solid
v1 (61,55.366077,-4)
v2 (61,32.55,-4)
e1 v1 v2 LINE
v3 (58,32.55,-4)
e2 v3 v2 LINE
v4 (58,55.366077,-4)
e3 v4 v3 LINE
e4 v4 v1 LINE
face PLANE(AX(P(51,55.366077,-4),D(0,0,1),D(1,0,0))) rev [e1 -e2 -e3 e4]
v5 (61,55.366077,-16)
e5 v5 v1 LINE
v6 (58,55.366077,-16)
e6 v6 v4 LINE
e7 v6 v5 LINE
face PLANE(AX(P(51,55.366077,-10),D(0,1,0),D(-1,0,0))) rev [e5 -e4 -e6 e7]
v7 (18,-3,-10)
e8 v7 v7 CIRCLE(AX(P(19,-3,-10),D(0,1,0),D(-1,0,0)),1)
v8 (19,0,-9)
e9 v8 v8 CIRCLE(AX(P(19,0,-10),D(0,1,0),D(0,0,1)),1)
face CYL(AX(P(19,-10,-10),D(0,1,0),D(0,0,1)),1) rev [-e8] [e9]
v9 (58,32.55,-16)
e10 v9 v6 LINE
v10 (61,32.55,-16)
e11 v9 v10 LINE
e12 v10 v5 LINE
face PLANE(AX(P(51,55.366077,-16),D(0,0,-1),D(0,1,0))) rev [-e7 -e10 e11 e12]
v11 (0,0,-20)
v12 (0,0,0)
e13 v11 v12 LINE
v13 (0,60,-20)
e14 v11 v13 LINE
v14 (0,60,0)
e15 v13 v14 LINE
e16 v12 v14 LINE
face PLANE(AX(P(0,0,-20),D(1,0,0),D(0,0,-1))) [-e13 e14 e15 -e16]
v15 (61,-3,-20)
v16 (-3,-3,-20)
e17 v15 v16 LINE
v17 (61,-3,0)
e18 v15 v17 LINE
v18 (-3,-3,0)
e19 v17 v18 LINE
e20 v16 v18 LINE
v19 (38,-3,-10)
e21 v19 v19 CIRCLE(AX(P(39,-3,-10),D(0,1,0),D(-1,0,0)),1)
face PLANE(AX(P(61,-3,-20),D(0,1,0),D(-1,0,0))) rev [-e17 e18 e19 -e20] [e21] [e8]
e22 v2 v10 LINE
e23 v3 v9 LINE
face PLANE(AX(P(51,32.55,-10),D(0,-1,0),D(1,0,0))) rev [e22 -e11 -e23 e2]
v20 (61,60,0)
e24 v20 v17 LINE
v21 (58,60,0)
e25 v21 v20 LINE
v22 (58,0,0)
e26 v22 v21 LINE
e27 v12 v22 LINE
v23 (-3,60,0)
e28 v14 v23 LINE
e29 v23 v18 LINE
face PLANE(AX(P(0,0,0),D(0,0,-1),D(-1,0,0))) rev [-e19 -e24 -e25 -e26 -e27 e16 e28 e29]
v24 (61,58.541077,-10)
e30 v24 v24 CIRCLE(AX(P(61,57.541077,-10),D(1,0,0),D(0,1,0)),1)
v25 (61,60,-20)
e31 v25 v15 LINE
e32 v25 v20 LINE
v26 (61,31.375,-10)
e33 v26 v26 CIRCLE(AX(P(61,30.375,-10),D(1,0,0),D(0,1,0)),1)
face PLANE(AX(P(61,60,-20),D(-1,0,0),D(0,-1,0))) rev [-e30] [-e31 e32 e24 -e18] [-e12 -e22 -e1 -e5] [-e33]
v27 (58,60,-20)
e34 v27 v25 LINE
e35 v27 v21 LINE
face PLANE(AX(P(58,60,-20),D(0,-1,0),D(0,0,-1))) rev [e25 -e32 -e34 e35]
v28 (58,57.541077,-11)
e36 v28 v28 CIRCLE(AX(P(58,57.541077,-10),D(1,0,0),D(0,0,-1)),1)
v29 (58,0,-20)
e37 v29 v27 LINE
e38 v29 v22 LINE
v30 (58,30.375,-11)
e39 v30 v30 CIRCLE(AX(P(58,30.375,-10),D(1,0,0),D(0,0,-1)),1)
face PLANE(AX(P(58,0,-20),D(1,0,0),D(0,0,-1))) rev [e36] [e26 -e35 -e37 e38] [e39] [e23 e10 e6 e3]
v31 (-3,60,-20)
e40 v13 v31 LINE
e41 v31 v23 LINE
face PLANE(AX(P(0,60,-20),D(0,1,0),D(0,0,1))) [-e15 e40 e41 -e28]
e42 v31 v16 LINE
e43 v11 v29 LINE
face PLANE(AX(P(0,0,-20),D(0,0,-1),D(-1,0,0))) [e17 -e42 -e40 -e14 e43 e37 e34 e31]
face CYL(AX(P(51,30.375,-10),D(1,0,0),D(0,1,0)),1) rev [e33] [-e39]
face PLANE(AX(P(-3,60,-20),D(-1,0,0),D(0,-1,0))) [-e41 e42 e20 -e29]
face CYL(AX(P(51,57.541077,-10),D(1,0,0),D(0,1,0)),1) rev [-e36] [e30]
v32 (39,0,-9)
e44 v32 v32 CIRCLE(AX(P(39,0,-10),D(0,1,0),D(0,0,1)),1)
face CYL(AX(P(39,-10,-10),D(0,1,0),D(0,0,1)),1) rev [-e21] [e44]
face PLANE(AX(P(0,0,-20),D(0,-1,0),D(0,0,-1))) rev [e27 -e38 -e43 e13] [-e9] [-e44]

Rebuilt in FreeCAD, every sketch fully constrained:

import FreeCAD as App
import Part
import Sketcher
from FreeCAD import Vector


def add_polygon(sketch, points):
    """Adds a closed chain of lines whose ends are joined by coincident constraints."""
    first, n = sketch.GeometryCount, len(points)
    for a, b in zip(points, points[1:] + points[:1]):
        sketch.addGeometry(Part.LineSegment(App.Vector(*a, 0), App.Vector(*b, 0)), False)
    for i in range(n):
        sketch.addConstraint(Sketcher.Constraint("Coincident", first + i, 2, first + (i + 1) % n, 1))

doc = App.newDocument("Part")
body = doc.addObject("PartDesign::Body", "Body")

# Sketch on XY plane
sketch1 = body.newObject("Sketcher::SketchObject", "Sketch")
sketch1.AttachmentSupport = (doc.getObject("XY_Plane"), [""])
sketch1.MapMode = "FlatFace"
add_polygon(sketch1, [(58, 0), (0, 0), (0, 60), (-3, 60), (-3, -3), (61, -3), (61, 60), (58, 60)])  # lines 0-7
sketch1.addConstraint([
    Sketcher.Constraint("Horizontal", 0),
    Sketcher.Constraint("Vertical", 1),
    Sketcher.Constraint("Horizontal", 2),
    Sketcher.Constraint("Vertical", 3),
    Sketcher.Constraint("Horizontal", 4),
    Sketcher.Constraint("Vertical", 5),
    Sketcher.Constraint("Horizontal", 6),
    Sketcher.Constraint("Vertical", 7),
    Sketcher.Constraint("Coincident", 0, 2, -1, 1),
    Sketcher.Constraint("Horizontal", 2, 2, 5, 2),
    Sketcher.Constraint("Equal", 2, 6),
    Sketcher.Constraint("DistanceX", 0, 2, 0, 1, 58.0),
    Sketcher.Constraint("DistanceX", 2, 2, 2, 1, 3.0),
    Sketcher.Constraint("DistanceY", 1, 1, 1, 2, 60.0),
    Sketcher.Constraint("DistanceY", 3, 2, 3, 1, 63.0),
])
pad1 = body.newObject("PartDesign::Pad", "Pad")
pad1.Profile = sketch1
pad1.Length = 20
pad1.Reversed = True

# Sketch on YZ plane
sketch2 = body.newObject("Sketcher::SketchObject", "Sketch001")
sketch2.AttachmentSupport = (doc.getObject("YZ_Plane"), [""])
sketch2.MapMode = "FlatFace"
sketch2.AttachmentOffset = App.Placement(Vector(0, 0, 61), App.Rotation())
sketch2.addGeometry(Part.Circle(Vector(57.541077, -10, 0), Vector(0, 0, 1), 1), False)  # 0
sketch2.addGeometry(Part.Circle(Vector(30.375, -10, 0), Vector(0, 0, 1), 1), False)  # 1
add_polygon(sketch2, [(32.55, -16), (55.366077, -16), (55.366077, -4), (32.55, -4)])  # lines 2-5
sketch2.addConstraint([
    Sketcher.Constraint("Horizontal", 2),
    Sketcher.Constraint("Vertical", 3),
    Sketcher.Constraint("Horizontal", 4),
    Sketcher.Constraint("Vertical", 5),
    Sketcher.Constraint("Equal", 0, 1),
    Sketcher.Constraint("Horizontal", 0, 3, 1, 3),
    Sketcher.Constraint("Diameter", 0, 2.0),
    Sketcher.Constraint("DistanceY", 3, 1, 3, 2, 12.0),
    Sketcher.Constraint("DistanceY", 0, 3, -1, 1, 10.0),
    Sketcher.Constraint("DistanceY", 2, 2, -1, 1, 16.0),
    Sketcher.Constraint("DistanceX", -1, 1, 4, 2, 32.55),
    Sketcher.Constraint("DistanceX", -1, 1, 1, 3, 30.375),
    Sketcher.Constraint("DistanceX", 2, 2, 0, 3, 2.175),
    Sketcher.Constraint("DistanceX", 2, 1, 2, 2, 22.816077),
])
pocket1 = body.newObject("PartDesign::Pocket", "Pocket")
pocket1.Profile = sketch2
pocket1.Length = 10

# Sketch on XZ plane
sketch3 = body.newObject("Sketcher::SketchObject", "Sketch002")
sketch3.AttachmentSupport = (doc.getObject("XZ_Plane"), [""])
sketch3.MapMode = "FlatFace"
sketch3.addGeometry([
    Part.Circle(Vector(19, -10, 0), Vector(0, 0, 1), 1),
    Part.Circle(Vector(39, -10, 0), Vector(0, 0, 1), 1),
], False)
sketch3.addConstraint([
    Sketcher.Constraint("Equal", 0, 1),
    Sketcher.Constraint("Horizontal", 0, 3, 1, 3),
    Sketcher.Constraint("Diameter", 0, 2.0),
    Sketcher.Constraint("DistanceX", -1, 1, 0, 3, 19.0),
    Sketcher.Constraint("DistanceY", 0, 3, -1, 1, 10.0),
    Sketcher.Constraint("DistanceX", -1, 1, 1, 3, 39.0),
])
pocket2 = body.newObject("PartDesign::Pocket", "Pocket001")
pocket2.Profile = sketch3
pocket2.Length = 10
pocket2.Reversed = True

doc.recompute()
